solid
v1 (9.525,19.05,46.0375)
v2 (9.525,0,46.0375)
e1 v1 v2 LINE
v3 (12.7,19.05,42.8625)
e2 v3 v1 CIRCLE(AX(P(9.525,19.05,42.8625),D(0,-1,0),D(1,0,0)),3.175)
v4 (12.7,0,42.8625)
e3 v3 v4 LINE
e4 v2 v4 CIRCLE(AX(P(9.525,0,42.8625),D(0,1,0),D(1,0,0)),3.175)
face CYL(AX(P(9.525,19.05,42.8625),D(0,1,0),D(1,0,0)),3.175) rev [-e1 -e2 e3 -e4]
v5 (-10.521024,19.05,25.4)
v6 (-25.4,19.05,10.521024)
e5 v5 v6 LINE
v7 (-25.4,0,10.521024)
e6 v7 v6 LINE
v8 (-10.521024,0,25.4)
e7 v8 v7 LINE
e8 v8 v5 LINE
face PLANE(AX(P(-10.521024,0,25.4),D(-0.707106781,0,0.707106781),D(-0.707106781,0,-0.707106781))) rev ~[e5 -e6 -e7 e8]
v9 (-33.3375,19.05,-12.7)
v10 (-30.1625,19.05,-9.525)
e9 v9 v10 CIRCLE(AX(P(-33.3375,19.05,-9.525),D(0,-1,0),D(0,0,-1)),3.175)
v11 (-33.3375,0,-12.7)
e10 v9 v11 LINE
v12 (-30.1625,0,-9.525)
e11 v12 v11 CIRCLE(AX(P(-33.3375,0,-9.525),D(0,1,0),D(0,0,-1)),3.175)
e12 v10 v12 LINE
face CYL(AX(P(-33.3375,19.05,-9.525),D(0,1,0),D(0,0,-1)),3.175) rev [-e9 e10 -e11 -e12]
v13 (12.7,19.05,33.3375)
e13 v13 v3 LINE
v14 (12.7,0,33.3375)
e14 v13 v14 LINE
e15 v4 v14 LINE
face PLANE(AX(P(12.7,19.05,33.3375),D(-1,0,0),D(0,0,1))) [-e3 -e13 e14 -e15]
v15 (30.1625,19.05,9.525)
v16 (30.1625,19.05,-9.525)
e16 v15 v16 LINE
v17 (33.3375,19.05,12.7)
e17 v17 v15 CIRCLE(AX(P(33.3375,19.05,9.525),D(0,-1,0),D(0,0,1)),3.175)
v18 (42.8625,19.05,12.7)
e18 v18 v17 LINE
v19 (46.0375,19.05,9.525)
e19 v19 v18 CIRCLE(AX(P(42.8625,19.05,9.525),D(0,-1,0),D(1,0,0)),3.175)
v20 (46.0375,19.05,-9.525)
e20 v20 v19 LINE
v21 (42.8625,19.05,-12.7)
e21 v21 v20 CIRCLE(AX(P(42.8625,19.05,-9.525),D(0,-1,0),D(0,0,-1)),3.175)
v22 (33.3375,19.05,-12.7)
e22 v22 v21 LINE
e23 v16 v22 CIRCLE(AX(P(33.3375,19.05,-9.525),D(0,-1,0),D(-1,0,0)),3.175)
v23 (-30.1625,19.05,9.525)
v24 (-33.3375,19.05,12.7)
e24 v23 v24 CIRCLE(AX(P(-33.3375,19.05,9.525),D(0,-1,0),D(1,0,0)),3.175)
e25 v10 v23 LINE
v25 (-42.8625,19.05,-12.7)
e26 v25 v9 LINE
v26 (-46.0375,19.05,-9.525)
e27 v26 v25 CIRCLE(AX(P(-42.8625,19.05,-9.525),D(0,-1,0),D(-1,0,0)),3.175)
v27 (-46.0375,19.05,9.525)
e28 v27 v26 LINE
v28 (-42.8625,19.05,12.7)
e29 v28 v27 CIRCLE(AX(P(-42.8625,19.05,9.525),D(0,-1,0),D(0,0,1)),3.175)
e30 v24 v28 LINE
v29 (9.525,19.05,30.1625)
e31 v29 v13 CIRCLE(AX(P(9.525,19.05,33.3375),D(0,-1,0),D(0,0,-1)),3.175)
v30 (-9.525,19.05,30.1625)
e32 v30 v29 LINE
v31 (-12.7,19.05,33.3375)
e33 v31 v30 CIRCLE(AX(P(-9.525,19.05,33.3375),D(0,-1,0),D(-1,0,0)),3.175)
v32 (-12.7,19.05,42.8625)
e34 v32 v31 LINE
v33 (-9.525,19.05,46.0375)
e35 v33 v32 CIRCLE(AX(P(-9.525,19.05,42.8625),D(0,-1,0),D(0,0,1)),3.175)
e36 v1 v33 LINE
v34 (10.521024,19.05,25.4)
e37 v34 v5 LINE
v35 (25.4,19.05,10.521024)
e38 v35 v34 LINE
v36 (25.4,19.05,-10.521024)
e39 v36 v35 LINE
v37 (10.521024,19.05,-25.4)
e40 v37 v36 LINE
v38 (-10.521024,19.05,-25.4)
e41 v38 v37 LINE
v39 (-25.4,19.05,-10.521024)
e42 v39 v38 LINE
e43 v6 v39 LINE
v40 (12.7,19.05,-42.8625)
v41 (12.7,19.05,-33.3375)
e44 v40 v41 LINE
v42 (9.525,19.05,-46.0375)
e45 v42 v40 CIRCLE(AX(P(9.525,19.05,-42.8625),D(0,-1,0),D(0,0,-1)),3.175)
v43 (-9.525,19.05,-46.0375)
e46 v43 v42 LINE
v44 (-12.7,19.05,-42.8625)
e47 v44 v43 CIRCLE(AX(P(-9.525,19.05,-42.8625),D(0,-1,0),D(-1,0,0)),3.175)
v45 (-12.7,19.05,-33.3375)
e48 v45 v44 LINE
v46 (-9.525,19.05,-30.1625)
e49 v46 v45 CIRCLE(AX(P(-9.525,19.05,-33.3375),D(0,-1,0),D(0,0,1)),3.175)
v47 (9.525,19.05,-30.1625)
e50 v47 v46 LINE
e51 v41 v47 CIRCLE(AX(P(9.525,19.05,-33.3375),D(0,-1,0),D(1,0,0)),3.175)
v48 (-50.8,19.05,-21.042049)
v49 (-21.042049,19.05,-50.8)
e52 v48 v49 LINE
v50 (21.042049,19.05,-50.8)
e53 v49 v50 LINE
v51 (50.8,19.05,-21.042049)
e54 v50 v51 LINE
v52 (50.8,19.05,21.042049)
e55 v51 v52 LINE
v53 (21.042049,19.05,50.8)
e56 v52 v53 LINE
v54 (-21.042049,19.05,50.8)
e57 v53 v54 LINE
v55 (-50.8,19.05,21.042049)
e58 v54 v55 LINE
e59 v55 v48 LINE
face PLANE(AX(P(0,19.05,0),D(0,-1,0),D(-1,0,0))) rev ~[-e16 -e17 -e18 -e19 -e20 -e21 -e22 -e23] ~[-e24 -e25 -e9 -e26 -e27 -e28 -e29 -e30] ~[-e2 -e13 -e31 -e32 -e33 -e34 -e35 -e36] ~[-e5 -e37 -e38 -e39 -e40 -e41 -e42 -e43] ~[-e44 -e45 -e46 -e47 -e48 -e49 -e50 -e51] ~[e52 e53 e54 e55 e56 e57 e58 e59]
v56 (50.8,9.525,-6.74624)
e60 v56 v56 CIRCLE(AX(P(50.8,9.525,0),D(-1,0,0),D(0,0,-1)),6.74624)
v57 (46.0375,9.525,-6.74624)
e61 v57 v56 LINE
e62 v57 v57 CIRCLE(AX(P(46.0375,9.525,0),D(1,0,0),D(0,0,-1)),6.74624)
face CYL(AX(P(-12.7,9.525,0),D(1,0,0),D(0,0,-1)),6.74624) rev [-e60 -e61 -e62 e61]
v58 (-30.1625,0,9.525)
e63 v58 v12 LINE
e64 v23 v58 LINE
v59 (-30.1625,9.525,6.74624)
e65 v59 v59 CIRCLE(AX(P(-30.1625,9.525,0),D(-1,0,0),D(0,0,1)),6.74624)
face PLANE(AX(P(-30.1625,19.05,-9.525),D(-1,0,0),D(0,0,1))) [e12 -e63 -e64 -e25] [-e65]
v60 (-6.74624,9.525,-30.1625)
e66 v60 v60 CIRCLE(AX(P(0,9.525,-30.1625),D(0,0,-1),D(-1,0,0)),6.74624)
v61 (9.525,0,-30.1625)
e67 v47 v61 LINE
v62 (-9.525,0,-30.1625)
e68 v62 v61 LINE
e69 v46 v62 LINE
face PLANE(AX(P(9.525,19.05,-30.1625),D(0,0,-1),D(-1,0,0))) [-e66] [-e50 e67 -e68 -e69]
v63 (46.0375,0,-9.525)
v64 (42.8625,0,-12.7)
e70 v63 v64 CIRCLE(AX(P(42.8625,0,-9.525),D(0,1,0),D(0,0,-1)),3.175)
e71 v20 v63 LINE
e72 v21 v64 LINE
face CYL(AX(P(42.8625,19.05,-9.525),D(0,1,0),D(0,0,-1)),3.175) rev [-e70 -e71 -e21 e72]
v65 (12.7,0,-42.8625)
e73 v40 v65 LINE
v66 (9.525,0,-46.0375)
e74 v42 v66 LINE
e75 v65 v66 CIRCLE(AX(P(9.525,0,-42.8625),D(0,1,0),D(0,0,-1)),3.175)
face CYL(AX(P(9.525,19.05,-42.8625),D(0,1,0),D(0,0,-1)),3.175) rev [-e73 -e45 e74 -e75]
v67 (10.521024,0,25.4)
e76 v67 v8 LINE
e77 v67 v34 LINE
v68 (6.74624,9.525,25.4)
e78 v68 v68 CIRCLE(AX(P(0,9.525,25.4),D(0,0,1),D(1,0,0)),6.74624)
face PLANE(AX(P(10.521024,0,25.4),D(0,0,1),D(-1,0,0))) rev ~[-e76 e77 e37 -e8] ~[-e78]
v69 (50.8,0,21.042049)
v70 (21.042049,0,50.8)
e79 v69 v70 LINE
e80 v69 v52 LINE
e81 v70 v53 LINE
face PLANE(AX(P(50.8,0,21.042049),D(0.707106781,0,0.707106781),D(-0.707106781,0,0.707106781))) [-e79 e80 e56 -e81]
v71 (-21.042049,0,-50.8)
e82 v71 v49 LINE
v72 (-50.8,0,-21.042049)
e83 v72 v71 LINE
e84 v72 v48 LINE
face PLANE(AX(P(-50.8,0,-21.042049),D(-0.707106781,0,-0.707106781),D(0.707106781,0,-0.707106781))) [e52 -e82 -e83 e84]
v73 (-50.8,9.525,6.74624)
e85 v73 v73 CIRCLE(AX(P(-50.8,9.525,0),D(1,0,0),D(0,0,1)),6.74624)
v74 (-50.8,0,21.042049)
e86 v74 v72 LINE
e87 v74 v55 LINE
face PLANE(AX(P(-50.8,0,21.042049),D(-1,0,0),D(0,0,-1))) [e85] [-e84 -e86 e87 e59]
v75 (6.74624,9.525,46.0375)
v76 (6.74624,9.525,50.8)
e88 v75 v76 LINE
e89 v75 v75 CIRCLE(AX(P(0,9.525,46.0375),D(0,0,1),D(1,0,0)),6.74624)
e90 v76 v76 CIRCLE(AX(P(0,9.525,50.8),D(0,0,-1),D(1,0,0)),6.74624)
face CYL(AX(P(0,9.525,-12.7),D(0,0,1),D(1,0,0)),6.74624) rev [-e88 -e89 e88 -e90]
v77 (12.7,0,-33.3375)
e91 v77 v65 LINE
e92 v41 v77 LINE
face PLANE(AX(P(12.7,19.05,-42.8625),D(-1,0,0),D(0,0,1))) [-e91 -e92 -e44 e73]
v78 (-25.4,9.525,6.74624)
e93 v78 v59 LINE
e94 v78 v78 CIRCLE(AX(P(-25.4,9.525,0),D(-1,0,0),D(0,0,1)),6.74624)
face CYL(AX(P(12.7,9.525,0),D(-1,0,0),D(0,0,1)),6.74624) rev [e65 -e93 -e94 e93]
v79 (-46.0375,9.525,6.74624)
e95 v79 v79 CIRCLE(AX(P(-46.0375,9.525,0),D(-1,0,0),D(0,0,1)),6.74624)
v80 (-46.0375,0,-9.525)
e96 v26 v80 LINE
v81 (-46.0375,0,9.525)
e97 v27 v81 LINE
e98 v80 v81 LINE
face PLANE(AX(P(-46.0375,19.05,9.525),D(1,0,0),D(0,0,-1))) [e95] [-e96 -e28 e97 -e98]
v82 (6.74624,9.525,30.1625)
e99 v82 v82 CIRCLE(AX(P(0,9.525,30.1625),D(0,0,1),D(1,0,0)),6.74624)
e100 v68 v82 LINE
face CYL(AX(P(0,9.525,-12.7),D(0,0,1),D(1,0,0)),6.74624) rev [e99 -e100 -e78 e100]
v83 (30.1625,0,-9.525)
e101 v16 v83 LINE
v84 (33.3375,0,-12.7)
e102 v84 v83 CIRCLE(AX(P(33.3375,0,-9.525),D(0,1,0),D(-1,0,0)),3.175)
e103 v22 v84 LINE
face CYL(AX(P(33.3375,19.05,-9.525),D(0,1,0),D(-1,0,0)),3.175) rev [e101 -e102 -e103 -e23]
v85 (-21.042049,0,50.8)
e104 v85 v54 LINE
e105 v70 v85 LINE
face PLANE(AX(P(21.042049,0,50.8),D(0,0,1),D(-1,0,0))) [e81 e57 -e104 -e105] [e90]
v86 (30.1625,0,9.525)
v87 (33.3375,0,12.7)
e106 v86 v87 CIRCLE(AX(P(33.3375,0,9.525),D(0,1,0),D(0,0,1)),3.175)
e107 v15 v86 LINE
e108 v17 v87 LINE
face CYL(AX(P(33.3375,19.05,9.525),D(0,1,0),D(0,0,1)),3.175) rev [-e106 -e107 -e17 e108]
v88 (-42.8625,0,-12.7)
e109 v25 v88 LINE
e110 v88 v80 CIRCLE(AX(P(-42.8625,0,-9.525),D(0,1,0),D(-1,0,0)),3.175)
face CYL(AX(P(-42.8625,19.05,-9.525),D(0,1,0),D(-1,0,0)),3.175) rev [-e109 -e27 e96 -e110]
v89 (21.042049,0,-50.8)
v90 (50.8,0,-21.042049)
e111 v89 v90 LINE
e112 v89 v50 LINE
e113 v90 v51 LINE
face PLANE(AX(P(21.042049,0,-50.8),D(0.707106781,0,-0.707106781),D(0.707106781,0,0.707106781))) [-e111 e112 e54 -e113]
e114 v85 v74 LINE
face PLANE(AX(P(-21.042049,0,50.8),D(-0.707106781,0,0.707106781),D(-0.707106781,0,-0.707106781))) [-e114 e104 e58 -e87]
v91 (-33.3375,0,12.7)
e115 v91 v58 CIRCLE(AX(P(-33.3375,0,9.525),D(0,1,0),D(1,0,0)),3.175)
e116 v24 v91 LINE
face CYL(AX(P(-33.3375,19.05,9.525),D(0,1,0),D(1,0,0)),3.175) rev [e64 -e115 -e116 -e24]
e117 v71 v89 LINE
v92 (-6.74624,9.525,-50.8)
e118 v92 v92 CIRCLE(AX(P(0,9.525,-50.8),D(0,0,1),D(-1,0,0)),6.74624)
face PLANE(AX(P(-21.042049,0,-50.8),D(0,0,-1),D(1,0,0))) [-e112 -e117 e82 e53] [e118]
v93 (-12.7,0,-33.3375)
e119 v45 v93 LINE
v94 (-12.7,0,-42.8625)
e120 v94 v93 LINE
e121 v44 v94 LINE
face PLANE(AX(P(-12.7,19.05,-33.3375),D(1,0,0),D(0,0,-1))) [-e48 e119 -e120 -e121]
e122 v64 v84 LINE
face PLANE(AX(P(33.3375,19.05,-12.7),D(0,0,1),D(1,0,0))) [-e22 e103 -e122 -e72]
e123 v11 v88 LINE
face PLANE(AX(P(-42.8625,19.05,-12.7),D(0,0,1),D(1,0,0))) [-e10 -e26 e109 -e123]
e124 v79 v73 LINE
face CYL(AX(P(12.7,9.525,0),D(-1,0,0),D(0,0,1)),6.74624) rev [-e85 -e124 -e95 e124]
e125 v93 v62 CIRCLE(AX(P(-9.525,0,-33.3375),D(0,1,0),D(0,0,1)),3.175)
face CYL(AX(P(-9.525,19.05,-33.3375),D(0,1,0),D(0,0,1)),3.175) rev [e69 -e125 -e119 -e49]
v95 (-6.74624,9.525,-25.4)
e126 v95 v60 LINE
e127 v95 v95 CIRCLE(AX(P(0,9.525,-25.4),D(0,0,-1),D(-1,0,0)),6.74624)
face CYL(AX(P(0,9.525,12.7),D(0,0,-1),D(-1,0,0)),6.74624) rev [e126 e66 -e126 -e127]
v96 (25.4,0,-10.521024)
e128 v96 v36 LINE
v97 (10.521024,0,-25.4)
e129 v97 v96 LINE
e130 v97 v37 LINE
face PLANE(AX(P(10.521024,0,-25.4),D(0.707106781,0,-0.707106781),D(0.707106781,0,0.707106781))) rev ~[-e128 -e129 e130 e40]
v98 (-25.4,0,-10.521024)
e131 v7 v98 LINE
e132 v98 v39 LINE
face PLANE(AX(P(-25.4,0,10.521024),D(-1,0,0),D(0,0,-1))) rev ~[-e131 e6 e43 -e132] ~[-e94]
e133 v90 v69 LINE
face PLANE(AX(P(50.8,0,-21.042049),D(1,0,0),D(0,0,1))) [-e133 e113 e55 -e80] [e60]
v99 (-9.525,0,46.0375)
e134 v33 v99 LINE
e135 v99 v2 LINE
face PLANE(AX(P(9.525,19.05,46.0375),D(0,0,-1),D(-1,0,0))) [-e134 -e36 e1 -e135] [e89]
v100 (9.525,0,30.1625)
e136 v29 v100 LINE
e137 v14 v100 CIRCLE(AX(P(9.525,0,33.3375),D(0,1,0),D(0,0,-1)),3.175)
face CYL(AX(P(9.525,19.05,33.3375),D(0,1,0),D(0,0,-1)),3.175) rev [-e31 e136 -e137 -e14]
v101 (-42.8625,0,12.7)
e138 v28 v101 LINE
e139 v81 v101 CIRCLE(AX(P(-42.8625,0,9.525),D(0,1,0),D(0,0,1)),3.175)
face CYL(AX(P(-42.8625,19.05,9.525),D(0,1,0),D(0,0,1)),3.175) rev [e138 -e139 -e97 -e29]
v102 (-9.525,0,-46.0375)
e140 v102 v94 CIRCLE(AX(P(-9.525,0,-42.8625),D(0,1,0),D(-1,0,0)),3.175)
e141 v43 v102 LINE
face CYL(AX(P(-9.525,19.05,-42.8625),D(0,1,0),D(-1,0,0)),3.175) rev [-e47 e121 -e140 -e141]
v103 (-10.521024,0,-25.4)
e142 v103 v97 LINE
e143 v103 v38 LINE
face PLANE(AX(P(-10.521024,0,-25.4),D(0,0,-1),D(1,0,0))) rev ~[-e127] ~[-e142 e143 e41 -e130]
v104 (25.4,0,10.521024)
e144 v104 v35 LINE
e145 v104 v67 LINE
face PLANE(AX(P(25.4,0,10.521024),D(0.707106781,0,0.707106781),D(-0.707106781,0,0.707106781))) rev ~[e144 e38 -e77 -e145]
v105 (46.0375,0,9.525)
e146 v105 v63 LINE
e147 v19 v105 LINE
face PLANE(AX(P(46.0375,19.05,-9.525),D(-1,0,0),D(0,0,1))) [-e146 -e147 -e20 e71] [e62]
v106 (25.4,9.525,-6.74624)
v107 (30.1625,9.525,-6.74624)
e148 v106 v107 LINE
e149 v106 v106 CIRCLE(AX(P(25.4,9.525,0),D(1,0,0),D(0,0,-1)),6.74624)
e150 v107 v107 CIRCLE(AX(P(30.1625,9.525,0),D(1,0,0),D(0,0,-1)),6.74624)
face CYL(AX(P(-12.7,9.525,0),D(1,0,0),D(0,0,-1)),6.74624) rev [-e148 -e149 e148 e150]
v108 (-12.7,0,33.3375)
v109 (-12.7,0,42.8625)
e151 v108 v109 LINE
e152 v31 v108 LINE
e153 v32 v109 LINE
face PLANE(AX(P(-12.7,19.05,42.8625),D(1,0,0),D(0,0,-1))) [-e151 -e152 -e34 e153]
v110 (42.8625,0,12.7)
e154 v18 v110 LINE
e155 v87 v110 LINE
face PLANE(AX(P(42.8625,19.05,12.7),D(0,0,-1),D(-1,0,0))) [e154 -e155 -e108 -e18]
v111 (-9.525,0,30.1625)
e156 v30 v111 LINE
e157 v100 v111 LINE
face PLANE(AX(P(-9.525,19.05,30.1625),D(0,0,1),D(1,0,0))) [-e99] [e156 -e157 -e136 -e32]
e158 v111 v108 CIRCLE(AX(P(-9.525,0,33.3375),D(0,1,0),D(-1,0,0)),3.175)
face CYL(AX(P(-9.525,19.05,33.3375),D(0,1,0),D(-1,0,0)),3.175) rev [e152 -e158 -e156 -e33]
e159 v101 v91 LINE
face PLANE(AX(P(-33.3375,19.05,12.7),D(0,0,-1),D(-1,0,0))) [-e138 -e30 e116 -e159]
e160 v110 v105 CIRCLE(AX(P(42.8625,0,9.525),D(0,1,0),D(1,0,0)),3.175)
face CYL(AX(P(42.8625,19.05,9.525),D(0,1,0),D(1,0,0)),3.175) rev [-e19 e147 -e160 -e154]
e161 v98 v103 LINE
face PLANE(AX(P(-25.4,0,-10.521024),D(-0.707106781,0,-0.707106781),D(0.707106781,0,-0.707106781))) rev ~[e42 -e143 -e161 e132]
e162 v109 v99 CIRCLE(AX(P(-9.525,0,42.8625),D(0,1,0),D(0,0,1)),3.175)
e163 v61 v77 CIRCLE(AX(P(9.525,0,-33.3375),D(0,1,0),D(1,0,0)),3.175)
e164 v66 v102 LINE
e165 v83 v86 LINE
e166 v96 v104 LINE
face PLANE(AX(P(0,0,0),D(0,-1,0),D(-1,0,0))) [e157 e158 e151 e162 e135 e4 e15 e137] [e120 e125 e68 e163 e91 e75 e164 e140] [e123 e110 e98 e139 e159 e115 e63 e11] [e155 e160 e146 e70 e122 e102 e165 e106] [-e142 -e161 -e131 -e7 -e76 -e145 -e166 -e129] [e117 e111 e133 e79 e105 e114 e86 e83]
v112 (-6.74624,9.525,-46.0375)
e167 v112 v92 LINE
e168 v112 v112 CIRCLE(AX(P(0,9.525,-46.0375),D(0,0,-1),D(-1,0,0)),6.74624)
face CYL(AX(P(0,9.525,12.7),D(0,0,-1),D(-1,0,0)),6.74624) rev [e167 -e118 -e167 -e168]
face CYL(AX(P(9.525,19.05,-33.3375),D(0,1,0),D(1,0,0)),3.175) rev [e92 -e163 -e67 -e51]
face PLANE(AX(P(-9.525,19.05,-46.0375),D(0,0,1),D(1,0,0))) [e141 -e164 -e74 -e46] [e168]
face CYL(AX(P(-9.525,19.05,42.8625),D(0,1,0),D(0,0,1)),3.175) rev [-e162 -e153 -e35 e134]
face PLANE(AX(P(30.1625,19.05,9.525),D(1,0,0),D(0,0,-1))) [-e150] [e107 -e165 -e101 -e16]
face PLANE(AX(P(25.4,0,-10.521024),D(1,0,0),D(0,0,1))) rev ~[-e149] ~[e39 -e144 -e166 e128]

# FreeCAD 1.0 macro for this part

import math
import FreeCAD as App
import Part
import Sketcher
from FreeCAD import Vector
Q = App.Units.Quantity

doc = App.newDocument("Part")
body = doc.addObject("PartDesign::Body", "Body")

# Sketch on XZ plane
sketch1 = doc.addObject("Sketcher::SketchObject", "Sketch")
body.addObject(sketch1)
sketch1.AttachmentSupport = (doc.XZ_Plane, [""])
sketch1.MapMode = "FlatFace"
sketch1.addGeometry([
    Part.LineSegment(Vector(-51, -21, 0), Vector(-51, 21, 0)),  # 0
    Part.LineSegment(Vector(-51, 21, 0), Vector(-21, 51, 0)),  # 1
    Part.LineSegment(Vector(-21, 51, 0), Vector(21, 51, 0)),  # 2
    Part.LineSegment(Vector(21, 51, 0), Vector(51, 21, 0)),  # 3
    Part.LineSegment(Vector(51, 21, 0), Vector(51, -21, 0)),  # 4
    Part.LineSegment(Vector(51, -21, 0), Vector(21, -51, 0)),  # 5
    Part.LineSegment(Vector(21, -51, 0), Vector(-21, -51, 0)),  # 6
    Part.LineSegment(Vector(-21, -51, 0), Vector(-51, -21, 0)),  # 7
    Part.LineSegment(Vector(-25, -11, 0), Vector(-11, -25, 0)),  # 8
    Part.LineSegment(Vector(-11, -25, 0), Vector(11, -25, 0)),  # 9
    Part.LineSegment(Vector(11, -25, 0), Vector(25, -11, 0)),  # 10
    Part.LineSegment(Vector(25, -11, 0), Vector(25, 11, 0)),  # 11
    Part.LineSegment(Vector(25, 11, 0), Vector(11, 25, 0)),  # 12
    Part.LineSegment(Vector(11, 25, 0), Vector(-11, 25, 0)),  # 13
    Part.LineSegment(Vector(-11, 25, 0), Vector(-25, 11, 0)),  # 14
    Part.LineSegment(Vector(-25, 11, 0), Vector(-25, -11, 0)),  # 15
], False)
sketch1.addConstraint([
    Sketcher.Constraint("Coincident", 0, 2, 1, 1),
    Sketcher.Constraint("Coincident", 1, 2, 2, 1),
    Sketcher.Constraint("Coincident", 2, 2, 3, 1),
    Sketcher.Constraint("Coincident", 3, 2, 4, 1),
    Sketcher.Constraint("Coincident", 4, 2, 5, 1),
    Sketcher.Constraint("Coincident", 5, 2, 6, 1),
    Sketcher.Constraint("Coincident", 6, 2, 7, 1),
    Sketcher.Constraint("Coincident", 7, 2, 0, 1),
    Sketcher.Constraint("Coincident", 8, 2, 9, 1),
    Sketcher.Constraint("Coincident", 9, 2, 10, 1),
    Sketcher.Constraint("Coincident", 10, 2, 11, 1),
    Sketcher.Constraint("Coincident", 11, 2, 12, 1),
    Sketcher.Constraint("Coincident", 12, 2, 13, 1),
    Sketcher.Constraint("Coincident", 13, 2, 14, 1),
    Sketcher.Constraint("Coincident", 14, 2, 15, 1),
    Sketcher.Constraint("Coincident", 15, 2, 8, 1),
    Sketcher.Constraint("Vertical", 0),
    Sketcher.Constraint("Horizontal", 2),
    Sketcher.Constraint("Vertical", 4),
    Sketcher.Constraint("Horizontal", 6),
    Sketcher.Constraint("Horizontal", 9),
    Sketcher.Constraint("Vertical", 11),
    Sketcher.Constraint("Horizontal", 13),
    Sketcher.Constraint("Vertical", 15),
    Sketcher.Constraint("Symmetric", 0, 2, 4, 2, -1, 1),
    Sketcher.Constraint("Symmetric", 1, 2, 5, 2, -1, 1),
    Sketcher.Constraint("Symmetric", 8, 2, 12, 2, -1, 1),
    Sketcher.Constraint("Symmetric", 10, 2, 14, 2, -1, 1),
    Sketcher.Constraint("Perpendicular", 1, 3),
    Sketcher.Constraint("Perpendicular", 5, 7),
    Sketcher.Constraint("Parallel", 7, 8),
    Sketcher.Constraint("Perpendicular", 8, 10),
    Sketcher.Constraint("Perpendicular", 10, 12),
    Sketcher.Constraint("Perpendicular", 12, 14),
    Sketcher.Constraint("Horizontal", 0, 2, 3, 2),
    Sketcher.Constraint("Horizontal", 4, 2, 7, 2),
    Sketcher.Constraint("Horizontal", 11, 2, 14, 2),
    Sketcher.Constraint("Vertical", 2, 2, 5, 2),
    Sketcher.Constraint("Equal", 6, 0),
    Sketcher.Constraint("Equal", 13, 11),
    Sketcher.Constraint("DistanceX", 0, 2, -1, 1, Q("2 in")),
    Sketcher.Constraint("DistanceY", 8, 2, -1, 1, Q("1 in")),
    Sketcher.Constraint("DistanceX", 9, 1, 9, 2, Q("21.042049 mm")),
    Sketcher.Constraint("DistanceX", 2, 1, 2, 2, Q("42.084098 mm")),
])
pad1 = doc.addObject("PartDesign::Pad", "Pad")
body.addObject(pad1)
pad1.Profile = sketch1
pad1.Length = Q("0.75 in")
pad1.Reversed = True

# Sketch on XZ plane
sketch2 = doc.addObject("Sketcher::SketchObject", "Sketch001")
body.addObject(sketch2)
sketch2.AttachmentSupport = (doc.XZ_Plane, [""])
sketch2.MapMode = "FlatFace"
sketch2.AttachmentOffset = App.Placement(Vector(0, 0, -0.75 * 25.4), App.Rotation())
sketch2.addGeometry([
    Part.LineSegment(Vector(42.9, -12.7, 0), Vector(33.3, -12.7, 0)),  # 0
    Part.ArcOfCircle(Part.Circle(Vector(33.3, -9.5, 0), Vector(0, 0, 1), 3.2), math.radians(-180), math.radians(-90)),  # 1
    Part.LineSegment(Vector(30.2, -9.5, 0), Vector(30.2, 9.5, 0)),  # 2
    Part.ArcOfCircle(Part.Circle(Vector(33.3, 9.5, 0), Vector(0, 0, 1), 3.2), math.radians(90), math.radians(180)),  # 3
    Part.LineSegment(Vector(33.3, 12.7, 0), Vector(42.9, 12.7, 0)),  # 4
    Part.ArcOfCircle(Part.Circle(Vector(42.9, 9.5, 0), Vector(0, 0, 1), 3.2), math.radians(0), math.radians(90)),  # 5
    Part.LineSegment(Vector(46, 9.5, 0), Vector(46, -9.5, 0)),  # 6
    Part.ArcOfCircle(Part.Circle(Vector(42.9, -9.5, 0), Vector(0, 0, 1), 3.2), math.radians(-90), math.radians(0)),  # 7
], False)
sketch2.addConstraint([
    Sketcher.Constraint("Tangent", 0, 2, 1, 2),
    Sketcher.Constraint("Tangent", 1, 1, 2, 1),
    Sketcher.Constraint("Tangent", 2, 2, 3, 2),
    Sketcher.Constraint("Tangent", 3, 1, 4, 1),
    Sketcher.Constraint("Tangent", 4, 2, 5, 2),
    Sketcher.Constraint("Tangent", 5, 1, 6, 1),
    Sketcher.Constraint("Tangent", 6, 2, 7, 2),
    Sketcher.Constraint("Tangent", 7, 1, 0, 1),
    Sketcher.Constraint("Horizontal", 0),
    Sketcher.Constraint("Vertical", 2),
    Sketcher.Constraint("Horizontal", 4),
    Sketcher.Constraint("Vertical", 6),
    Sketcher.Constraint("Equal", 1, 3),
    Sketcher.Constraint("Equal", 3, 5),
    Sketcher.Constraint("Equal", 5, 7),
    Sketcher.Constraint("Radius", 1, Q("0.125 in")),
    Sketcher.Constraint("DistanceY", 2, 1, 2, 2, Q("0.75 in")),
    Sketcher.Constraint("DistanceY", 0, 2, -1, 1, Q("0.5 in")),
    Sketcher.Constraint("DistanceX", 1, 1, 7, 3, Q("0.5 in")),
    Sketcher.Constraint("DistanceX", -1, 1, 1, 3, Q("1.3125 in")),
])
pocket1 = doc.addObject("PartDesign::Pocket", "Pocket")
body.addObject(pocket1)
pocket1.Profile = sketch2
pocket1.Type = "ThroughAll"
pocket1.Reversed = True

# Sketch on XZ plane
sketch3 = doc.addObject("Sketcher::SketchObject", "Sketch002")
body.addObject(sketch3)
sketch3.AttachmentSupport = (doc.XZ_Plane, [""])
sketch3.MapMode = "FlatFace"
sketch3.AttachmentOffset = App.Placement(Vector(0, 0, -0.375 * 25.4), App.Rotation())
sketch3.addGeometry([
    Part.LineSegment(Vector(-17, 0, 0), Vector(51, 0, 0)),
    Part.LineSegment(Vector(51, 0, 0), Vector(51, -7, 0)),
    Part.LineSegment(Vector(51, -7, 0), Vector(-13, -7, 0)),
    Part.LineSegment(Vector(-13, -7, 0), Vector(-17, 0, 0)),
], False)
sketch3.addConstraint([
    Sketcher.Constraint("Coincident", 0, 2, 1, 1),
    Sketcher.Constraint("Coincident", 1, 2, 2, 1),
    Sketcher.Constraint("Coincident", 2, 2, 3, 1),
    Sketcher.Constraint("Coincident", 3, 2, 0, 1),
    Sketcher.Constraint("Horizontal", 0),
    Sketcher.Constraint("Vertical", 1),
    Sketcher.Constraint("Horizontal", 2),
    Sketcher.Constraint("PointOnObject", 0, 2, -1),
    Sketcher.Constraint("DistanceX", 2, 2, 2, 1, Q("2.5 in")),
    Sketcher.Constraint("DistanceX", -1, 1, 0, 2, Q("2 in")),
    Sketcher.Constraint("Angle", 3, Q("121 deg")),
    Sketcher.Constraint("DistanceY", 1, 2, 1, 1, Q("0.2656 in")),
])
groove = doc.addObject("PartDesign::Groove", "Groove")
body.addObject(groove)
groove.Profile = sketch3
groove.ReferenceAxis = (sketch3, ["H_Axis"])
groove.Angle = 360
doc.recompute()

polarpattern = doc.addObject("PartDesign::PolarPattern", "PolarPattern")
body.addObject(polarpattern)
polarpattern.Originals = [pocket1, groove]
polarpattern.Axis = (doc.Y_Axis, [""])
polarpattern.Angle = 360
polarpattern.Occurrences = 4
body.Tip = polarpattern

doc.recompute()
